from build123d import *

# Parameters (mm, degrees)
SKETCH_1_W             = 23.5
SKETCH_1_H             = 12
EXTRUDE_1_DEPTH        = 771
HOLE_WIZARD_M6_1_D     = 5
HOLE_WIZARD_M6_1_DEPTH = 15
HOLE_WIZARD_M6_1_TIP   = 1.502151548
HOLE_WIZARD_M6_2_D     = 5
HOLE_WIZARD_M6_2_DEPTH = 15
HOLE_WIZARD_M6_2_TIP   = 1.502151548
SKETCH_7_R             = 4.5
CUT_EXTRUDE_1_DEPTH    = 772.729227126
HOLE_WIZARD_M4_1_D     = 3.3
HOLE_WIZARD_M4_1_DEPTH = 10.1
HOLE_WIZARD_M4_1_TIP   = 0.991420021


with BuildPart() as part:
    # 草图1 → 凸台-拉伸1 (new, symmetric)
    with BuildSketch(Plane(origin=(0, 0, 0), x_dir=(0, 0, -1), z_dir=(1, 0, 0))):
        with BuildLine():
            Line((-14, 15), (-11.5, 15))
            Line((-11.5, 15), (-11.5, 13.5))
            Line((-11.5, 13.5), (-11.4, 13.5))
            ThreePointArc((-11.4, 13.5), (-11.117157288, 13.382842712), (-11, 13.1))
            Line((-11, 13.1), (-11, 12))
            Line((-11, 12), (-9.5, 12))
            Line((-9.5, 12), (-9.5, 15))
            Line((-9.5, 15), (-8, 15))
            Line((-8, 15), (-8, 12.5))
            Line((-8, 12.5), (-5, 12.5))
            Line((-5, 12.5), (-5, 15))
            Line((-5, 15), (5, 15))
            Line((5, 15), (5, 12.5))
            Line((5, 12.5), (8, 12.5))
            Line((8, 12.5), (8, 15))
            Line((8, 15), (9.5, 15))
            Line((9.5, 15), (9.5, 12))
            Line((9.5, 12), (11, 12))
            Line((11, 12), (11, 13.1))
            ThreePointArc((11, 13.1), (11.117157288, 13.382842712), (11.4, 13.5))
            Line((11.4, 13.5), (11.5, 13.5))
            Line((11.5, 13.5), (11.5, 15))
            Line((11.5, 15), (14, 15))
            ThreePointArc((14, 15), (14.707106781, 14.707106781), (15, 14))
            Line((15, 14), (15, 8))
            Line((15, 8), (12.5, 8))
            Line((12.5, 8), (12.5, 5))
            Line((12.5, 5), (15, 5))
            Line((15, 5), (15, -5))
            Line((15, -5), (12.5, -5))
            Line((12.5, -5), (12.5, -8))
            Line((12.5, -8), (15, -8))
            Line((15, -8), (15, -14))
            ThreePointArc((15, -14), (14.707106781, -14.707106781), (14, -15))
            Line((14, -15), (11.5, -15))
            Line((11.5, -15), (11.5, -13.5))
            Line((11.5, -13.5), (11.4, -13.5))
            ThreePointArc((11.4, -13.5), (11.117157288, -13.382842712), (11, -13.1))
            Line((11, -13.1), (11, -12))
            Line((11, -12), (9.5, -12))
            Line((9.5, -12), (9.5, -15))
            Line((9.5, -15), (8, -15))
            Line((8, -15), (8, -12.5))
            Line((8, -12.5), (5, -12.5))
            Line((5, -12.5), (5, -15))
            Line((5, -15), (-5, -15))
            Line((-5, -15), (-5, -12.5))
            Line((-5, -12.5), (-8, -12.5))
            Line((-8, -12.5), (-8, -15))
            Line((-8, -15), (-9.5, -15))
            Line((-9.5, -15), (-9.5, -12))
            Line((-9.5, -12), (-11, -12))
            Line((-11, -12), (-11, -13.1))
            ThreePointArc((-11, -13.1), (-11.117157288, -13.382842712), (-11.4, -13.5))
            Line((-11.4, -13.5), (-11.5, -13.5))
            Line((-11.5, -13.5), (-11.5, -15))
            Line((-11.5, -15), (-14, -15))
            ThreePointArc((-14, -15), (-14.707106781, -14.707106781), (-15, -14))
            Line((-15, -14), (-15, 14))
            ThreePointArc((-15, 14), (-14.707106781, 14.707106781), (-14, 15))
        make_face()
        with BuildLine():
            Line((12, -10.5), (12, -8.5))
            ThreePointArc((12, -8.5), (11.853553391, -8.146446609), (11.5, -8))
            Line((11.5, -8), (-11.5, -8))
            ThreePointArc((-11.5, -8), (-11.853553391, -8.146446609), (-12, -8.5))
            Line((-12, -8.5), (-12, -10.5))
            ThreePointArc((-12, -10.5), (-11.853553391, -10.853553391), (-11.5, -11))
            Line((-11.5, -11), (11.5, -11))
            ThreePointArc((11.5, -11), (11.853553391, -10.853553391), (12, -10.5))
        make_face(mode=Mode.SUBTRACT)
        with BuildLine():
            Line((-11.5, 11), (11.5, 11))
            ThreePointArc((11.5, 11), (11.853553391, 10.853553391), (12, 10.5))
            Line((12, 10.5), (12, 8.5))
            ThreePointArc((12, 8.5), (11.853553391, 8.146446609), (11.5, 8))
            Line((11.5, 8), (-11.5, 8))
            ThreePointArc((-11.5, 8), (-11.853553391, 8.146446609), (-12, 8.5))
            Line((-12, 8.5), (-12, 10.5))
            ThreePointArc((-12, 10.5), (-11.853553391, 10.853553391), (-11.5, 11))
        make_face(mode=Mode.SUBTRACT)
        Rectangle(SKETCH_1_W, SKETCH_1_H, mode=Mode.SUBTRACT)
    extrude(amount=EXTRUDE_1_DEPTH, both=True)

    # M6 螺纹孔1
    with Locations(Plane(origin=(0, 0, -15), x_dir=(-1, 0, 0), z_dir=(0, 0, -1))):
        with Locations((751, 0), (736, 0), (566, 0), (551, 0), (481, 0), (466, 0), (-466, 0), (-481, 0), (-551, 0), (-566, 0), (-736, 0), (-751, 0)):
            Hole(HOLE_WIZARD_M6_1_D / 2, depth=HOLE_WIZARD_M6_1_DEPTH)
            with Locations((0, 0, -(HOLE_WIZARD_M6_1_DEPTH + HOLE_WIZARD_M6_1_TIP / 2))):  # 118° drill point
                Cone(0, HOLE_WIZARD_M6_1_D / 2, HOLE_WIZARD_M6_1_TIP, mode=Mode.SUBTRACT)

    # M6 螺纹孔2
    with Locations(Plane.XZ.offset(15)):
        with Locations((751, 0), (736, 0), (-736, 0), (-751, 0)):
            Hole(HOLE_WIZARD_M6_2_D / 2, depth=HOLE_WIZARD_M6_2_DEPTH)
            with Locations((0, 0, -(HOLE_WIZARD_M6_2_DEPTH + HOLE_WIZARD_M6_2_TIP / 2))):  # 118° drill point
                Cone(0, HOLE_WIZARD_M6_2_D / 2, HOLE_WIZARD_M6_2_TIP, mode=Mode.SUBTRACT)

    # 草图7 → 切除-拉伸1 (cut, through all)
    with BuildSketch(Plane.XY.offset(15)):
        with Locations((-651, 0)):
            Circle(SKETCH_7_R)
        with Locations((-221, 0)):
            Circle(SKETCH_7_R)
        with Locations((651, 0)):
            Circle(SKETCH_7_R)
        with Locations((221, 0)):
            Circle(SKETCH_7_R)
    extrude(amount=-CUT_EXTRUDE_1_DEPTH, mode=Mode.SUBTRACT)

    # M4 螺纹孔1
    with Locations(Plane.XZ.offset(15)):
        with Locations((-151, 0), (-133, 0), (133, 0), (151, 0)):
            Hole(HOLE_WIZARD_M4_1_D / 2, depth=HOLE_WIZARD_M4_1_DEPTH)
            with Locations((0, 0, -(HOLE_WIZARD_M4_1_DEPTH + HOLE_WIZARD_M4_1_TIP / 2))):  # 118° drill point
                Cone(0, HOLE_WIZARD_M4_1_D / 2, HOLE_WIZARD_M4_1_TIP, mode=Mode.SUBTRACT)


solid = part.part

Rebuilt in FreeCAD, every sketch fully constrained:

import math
import FreeCAD as App
import Part
import Sketcher


def add_polygon(sketch, points):
    """Adds a closed chain of lines whose ends are joined by coincident constraints."""
    first, n = sketch.GeometryCount, len(points)
    for a, b in zip(points, points[1:] + points[:1]):
        sketch.addGeometry(Part.LineSegment(App.Vector(*a, 0), App.Vector(*b, 0)), False)
    for i in range(n):
        sketch.addConstraint(Sketcher.Constraint("Coincident", first + i, 2, first + (i + 1) % n, 1))

doc = App.newDocument("Part")
body = doc.addObject("PartDesign::Body", "Body")

sketch1 = body.newObject("Sketcher::SketchObject", "Sketch")
sketch1.AttachmentSupport = (doc.getObject("YZ_Plane"), [""])
sketch1.MapMode = "FlatFace"
sketch1.addGeometry(Part.LineSegment(App.Vector(15, 11.5, 0), App.Vector(15, 14, 0)), False)
sketch1.addGeometry(Part.ArcOfCircle(Part.Circle(App.Vector(14, 14, 0), App.Vector(0, 0, 1), 1), math.radians(0), math.radians(90)), False)
sketch1.addGeometry(Part.LineSegment(App.Vector(14, 15, 0), App.Vector(-14, 15, 0)), False)
sketch1.addGeometry(Part.ArcOfCircle(Part.Circle(App.Vector(-14, 14, 0), App.Vector(0, 0, 1), 1), math.radians(90), math.radians(180)), False)
sketch1.addGeometry(Part.LineSegment(App.Vector(-15, 14, 0), App.Vector(-15, 11.5, 0)), False)
sketch1.addGeometry(Part.LineSegment(App.Vector(-15, 11.5, 0), App.Vector(-13.5, 11.5, 0)), False)
sketch1.addGeometry(Part.LineSegment(App.Vector(-13.5, 11.5, 0), App.Vector(-13.5, 11.4, 0)), False)
sketch1.addGeometry(Part.ArcOfCircle(Part.Circle(App.Vector(-13.1, 11.4, 0), App.Vector(0, 0, 1), 0.4), math.radians(-180), math.radians(-90)), False)
sketch1.addGeometry(Part.LineSegment(App.Vector(-13.1, 11, 0), App.Vector(-12, 11, 0)), False)
sketch1.addGeometry(Part.LineSegment(App.Vector(-12, 11, 0), App.Vector(-12, 9.5, 0)), False)
sketch1.addGeometry(Part.LineSegment(App.Vector(-12, 9.5, 0), App.Vector(-15, 9.5, 0)), False)
sketch1.addGeometry(Part.LineSegment(App.Vector(-15, 9.5, 0), App.Vector(-15, 8, 0)), False)
sketch1.addGeometry(Part.LineSegment(App.Vector(-15, 8, 0), App.Vector(-12.5, 8, 0)), False)
sketch1.addGeometry(Part.LineSegment(App.Vector(-12.5, 8, 0), App.Vector(-12.5, 5, 0)), False)
sketch1.addGeometry(Part.LineSegment(App.Vector(-12.5, 5, 0), App.Vector(-15, 5, 0)), False)
sketch1.addGeometry(Part.LineSegment(App.Vector(-15, 5, 0), App.Vector(-15, -5, 0)), False)
sketch1.addGeometry(Part.LineSegment(App.Vector(-15, -5, 0), App.Vector(-12.5, -5, 0)), False)
sketch1.addGeometry(Part.LineSegment(App.Vector(-12.5, -5, 0), App.Vector(-12.5, -8, 0)), False)
sketch1.addGeometry(Part.LineSegment(App.Vector(-12.5, -8, 0), App.Vector(-15, -8, 0)), False)
sketch1.addGeometry(Part.LineSegment(App.Vector(-15, -8, 0), App.Vector(-15, -9.5, 0)), False)
sketch1.addGeometry(Part.LineSegment(App.Vector(-15, -9.5, 0), App.Vector(-12, -9.5, 0)), False)
sketch1.addGeometry(Part.LineSegment(App.Vector(-12, -9.5, 0), App.Vector(-12, -11, 0)), False)
sketch1.addGeometry(Part.LineSegment(App.Vector(-12, -11, 0), App.Vector(-13.1, -11, 0)), False)
sketch1.addGeometry(Part.ArcOfCircle(Part.Circle(App.Vector(-13.1, -11.4, 0), App.Vector(0, 0, 1), 0.4), math.radians(90), math.radians(180)), False)
sketch1.addGeometry(Part.LineSegment(App.Vector(-13.5, -11.4, 0), App.Vector(-13.5, -11.5, 0)), False)
sketch1.addGeometry(Part.LineSegment(App.Vector(-13.5, -11.5, 0), App.Vector(-15, -11.5, 0)), False)
sketch1.addGeometry(Part.LineSegment(App.Vector(-15, -11.5, 0), App.Vector(-15, -14, 0)), False)
sketch1.addGeometry(Part.ArcOfCircle(Part.Circle(App.Vector(-14, -14, 0), App.Vector(0, 0, 1), 1), math.radians(-180), math.radians(-90)), False)
sketch1.addGeometry(Part.LineSegment(App.Vector(-14, -15, 0), App.Vector(-8, -15, 0)), False)
sketch1.addGeometry(Part.LineSegment(App.Vector(-8, -15, 0), App.Vector(-8, -12.5, 0)), False)
sketch1.addGeometry(Part.LineSegment(App.Vector(-8, -12.5, 0), App.Vector(-5, -12.5, 0)), False)
sketch1.addGeometry(Part.LineSegment(App.Vector(-5, -12.5, 0), App.Vector(-5, -15, 0)), False)
sketch1.addGeometry(Part.LineSegment(App.Vector(-5, -15, 0), App.Vector(5, -15, 0)), False)
sketch1.addGeometry(Part.LineSegment(App.Vector(5, -15, 0), App.Vector(5, -12.5, 0)), False)
sketch1.addGeometry(Part.LineSegment(App.Vector(5, -12.5, 0), App.Vector(8, -12.5, 0)), False)
sketch1.addGeometry(Part.LineSegment(App.Vector(8, -12.5, 0), App.Vector(8, -15, 0)), False)
sketch1.addGeometry(Part.LineSegment(App.Vector(8, -15, 0), App.Vector(14, -15, 0)), False)
sketch1.addGeometry(Part.ArcOfCircle(Part.Circle(App.Vector(14, -14, 0), App.Vector(0, 0, 1), 1), math.radians(-90), math.radians(0)), False)
sketch1.addGeometry(Part.LineSegment(App.Vector(15, -14, 0), App.Vector(15, -11.5, 0)), False)
sketch1.addGeometry(Part.LineSegment(App.Vector(15, -11.5, 0), App.Vector(13.5, -11.5, 0)), False)
sketch1.addGeometry(Part.LineSegment(App.Vector(13.5, -11.5, 0), App.Vector(13.5, -11.4, 0)), False)
sketch1.addGeometry(Part.ArcOfCircle(Part.Circle(App.Vector(13.1, -11.4, 0), App.Vector(0, 0, 1), 0.4), math.radians(0), math.radians(90)), False)
sketch1.addGeometry(Part.LineSegment(App.Vector(13.1, -11, 0), App.Vector(12, -11, 0)), False)
sketch1.addGeometry(Part.LineSegment(App.Vector(12, -11, 0), App.Vector(12, -9.5, 0)), False)
sketch1.addGeometry(Part.LineSegment(App.Vector(12, -9.5, 0), App.Vector(15, -9.5, 0)), False)
sketch1.addGeometry(Part.LineSegment(App.Vector(15, -9.5, 0), App.Vector(15, -8, 0)), False)
sketch1.addGeometry(Part.LineSegment(App.Vector(15, -8, 0), App.Vector(12.5, -8, 0)), False)
sketch1.addGeometry(Part.LineSegment(App.Vector(12.5, -8, 0), App.Vector(12.5, -5, 0)), False)
sketch1.addGeometry(Part.LineSegment(App.Vector(12.5, -5, 0), App.Vector(15, -5, 0)), False)
sketch1.addGeometry(Part.LineSegment(App.Vector(15, -5, 0), App.Vector(15, 5, 0)), False)
sketch1.addGeometry(Part.LineSegment(App.Vector(15, 5, 0), App.Vector(12.5, 5, 0)), False)
sketch1.addGeometry(Part.LineSegment(App.Vector(12.5, 5, 0), App.Vector(12.5, 8, 0)), False)
sketch1.addGeometry(Part.LineSegment(App.Vector(12.5, 8, 0), App.Vector(15, 8, 0)), False)
sketch1.addGeometry(Part.LineSegment(App.Vector(15, 8, 0), App.Vector(15, 9.5, 0)), False)
sketch1.addGeometry(Part.LineSegment(App.Vector(15, 9.5, 0), App.Vector(12, 9.5, 0)), False)
sketch1.addGeometry(Part.LineSegment(App.Vector(12, 9.5, 0), App.Vector(12, 11, 0)), False)
sketch1.addGeometry(Part.LineSegment(App.Vector(12, 11, 0), App.Vector(13.1, 11, 0)), False)
sketch1.addGeometry(Part.ArcOfCircle(Part.Circle(App.Vector(13.1, 11.4, 0), App.Vector(0, 0, 1), 0.4), math.radians(-90), math.radians(0)), False)
sketch1.addGeometry(Part.LineSegment(App.Vector(13.5, 11.4, 0), App.Vector(13.5, 11.5, 0)), False)
sketch1.addGeometry(Part.LineSegment(App.Vector(13.5, 11.5, 0), App.Vector(15, 11.5, 0)), False)
sketch1.addGeometry(Part.ArcOfCircle(Part.Circle(App.Vector(-10.5, -11.5, 0), App.Vector(0, 0, 1), 0.5), math.radians(180), math.radians(270)), False)
sketch1.addGeometry(Part.LineSegment(App.Vector(-11, -11.5, 0), App.Vector(-11, 11.5, 0)), False)
sketch1.addGeometry(Part.ArcOfCircle(Part.Circle(App.Vector(-10.5, 11.5, 0), App.Vector(0, 0, 1), 0.5), math.radians(90), math.radians(180)), False)
sketch1.addGeometry(Part.LineSegment(App.Vector(-10.5, 12, 0), App.Vector(-8.5, 12, 0)), False)
sketch1.addGeometry(Part.ArcOfCircle(Part.Circle(App.Vector(-8.5, 11.5, 0), App.Vector(0, 0, 1), 0.5), math.radians(0), math.radians(90)), False)
sketch1.addGeometry(Part.LineSegment(App.Vector(-8, 11.5, 0), App.Vector(-8, -11.5, 0)), False)
sketch1.addGeometry(Part.ArcOfCircle(Part.Circle(App.Vector(-8.5, -11.5, 0), App.Vector(0, 0, 1), 0.5), math.radians(-90), math.radians(0)), False)
sketch1.addGeometry(Part.LineSegment(App.Vector(-8.5, -12, 0), App.Vector(-10.5, -12, 0)), False)
add_polygon(sketch1, [(-6, 11.75), (6, 11.75), (6, -11.75), (-6, -11.75)])
sketch1.addGeometry(Part.LineSegment(App.Vector(11, 11.5, 0), App.Vector(11, -11.5, 0)), False)
sketch1.addGeometry(Part.ArcOfCircle(Part.Circle(App.Vector(10.5, -11.5, 0), App.Vector(0, 0, 1), 0.5), math.radians(-90), math.radians(0)), False)
sketch1.addGeometry(Part.LineSegment(App.Vector(10.5, -12, 0), App.Vector(8.5, -12, 0)), False)
sketch1.addGeometry(Part.ArcOfCircle(Part.Circle(App.Vector(8.5, -11.5, 0), App.Vector(0, 0, 1), 0.5), math.radians(180), math.radians(270)), False)
sketch1.addGeometry(Part.LineSegment(App.Vector(8, -11.5, 0), App.Vector(8, 11.5, 0)), False)
sketch1.addGeometry(Part.ArcOfCircle(Part.Circle(App.Vector(8.5, 11.5, 0), App.Vector(0, 0, 1), 0.5), math.radians(90), math.radians(180)), False)
sketch1.addGeometry(Part.LineSegment(App.Vector(8.5, 12, 0), App.Vector(10.5, 12, 0)), False)
sketch1.addGeometry(Part.ArcOfCircle(Part.Circle(App.Vector(10.5, 11.5, 0), App.Vector(0, 0, 1), 0.5), math.radians(0), math.radians(90)), False)
sketch1.addConstraint(Sketcher.Constraint("Tangent", 0, 2, 1, 1))
sketch1.addConstraint(Sketcher.Constraint("Tangent", 1, 2, 2, 1))
sketch1.addConstraint(Sketcher.Constraint("Tangent", 2, 2, 3, 1))
sketch1.addConstraint(Sketcher.Constraint("Tangent", 3, 2, 4, 1))
sketch1.addConstraint(Sketcher.Constraint("Coincident", 4, 2, 5, 1))
sketch1.addConstraint(Sketcher.Constraint("Coincident", 5, 2, 6, 1))
sketch1.addConstraint(Sketcher.Constraint("Tangent", 6, 2, 7, 1))
sketch1.addConstraint(Sketcher.Constraint("Tangent", 7, 2, 8, 1))
sketch1.addConstraint(Sketcher.Constraint("Coincident", 8, 2, 9, 1))
sketch1.addConstraint(Sketcher.Constraint("Coincident", 9, 2, 10, 1))
sketch1.addConstraint(Sketcher.Constraint("Coincident", 10, 2, 11, 1))
sketch1.addConstraint(Sketcher.Constraint("Coincident", 11, 2, 12, 1))
sketch1.addConstraint(Sketcher.Constraint("Coincident", 12, 2, 13, 1))
sketch1.addConstraint(Sketcher.Constraint("Coincident", 13, 2, 14, 1))
sketch1.addConstraint(Sketcher.Constraint("Coincident", 14, 2, 15, 1))
sketch1.addConstraint(Sketcher.Constraint("Coincident", 15, 2, 16, 1))
sketch1.addConstraint(Sketcher.Constraint("Coincident", 16, 2, 17, 1))
sketch1.addConstraint(Sketcher.Constraint("Coincident", 17, 2, 18, 1))
sketch1.addConstraint(Sketcher.Constraint("Coincident", 18, 2, 19, 1))
sketch1.addConstraint(Sketcher.Constraint("Coincident", 19, 2, 20, 1))
sketch1.addConstraint(Sketcher.Constraint("Coincident", 20, 2, 21, 1))
sketch1.addConstraint(Sketcher.Constraint("Coincident", 21, 2, 22, 1))
sketch1.addConstraint(Sketcher.Constraint("Tangent", 22, 2, 23, 1))
sketch1.addConstraint(Sketcher.Constraint("Tangent", 23, 2, 24, 1))
sketch1.addConstraint(Sketcher.Constraint("Coincident", 24, 2, 25, 1))
sketch1.addConstraint(Sketcher.Constraint("Coincident", 25, 2, 26, 1))
sketch1.addConstraint(Sketcher.Constraint("Tangent", 26, 2, 27, 1))
sketch1.addConstraint(Sketcher.Constraint("Tangent", 27, 2, 28, 1))
sketch1.addConstraint(Sketcher.Constraint("Coincident", 28, 2, 29, 1))
sketch1.addConstraint(Sketcher.Constraint("Coincident", 29, 2, 30, 1))
sketch1.addConstraint(Sketcher.Constraint("Coincident", 30, 2, 31, 1))
sketch1.addConstraint(Sketcher.Constraint("Coincident", 31, 2, 32, 1))
sketch1.addConstraint(Sketcher.Constraint("Coincident", 32, 2, 33, 1))
sketch1.addConstraint(Sketcher.Constraint("Coincident", 33, 2, 34, 1))
sketch1.addConstraint(Sketcher.Constraint("Coincident", 34, 2, 35, 1))
sketch1.addConstraint(Sketcher.Constraint("Coincident", 35, 2, 36, 1))
sketch1.addConstraint(Sketcher.Constraint("Tangent", 36, 2, 37, 1))
sketch1.addConstraint(Sketcher.Constraint("Tangent", 37, 2, 38, 1))
sketch1.addConstraint(Sketcher.Constraint("Coincident", 38, 2, 39, 1))
sketch1.addConstraint(Sketcher.Constraint("Coincident", 39, 2, 40, 1))
sketch1.addConstraint(Sketcher.Constraint("Tangent", 40, 2, 41, 1))
sketch1.addConstraint(Sketcher.Constraint("Tangent", 41, 2, 42, 1))
sketch1.addConstraint(Sketcher.Constraint("Coincident", 42, 2, 43, 1))
sketch1.addConstraint(Sketcher.Constraint("Coincident", 43, 2, 44, 1))
sketch1.addConstraint(Sketcher.Constraint("Coincident", 44, 2, 45, 1))
sketch1.addConstraint(Sketcher.Constraint("Coincident", 45, 2, 46, 1))
sketch1.addConstraint(Sketcher.Constraint("Coincident", 46, 2, 47, 1))
sketch1.addConstraint(Sketcher.Constraint("Coincident", 47, 2, 48, 1))
sketch1.addConstraint(Sketcher.Constraint("Coincident", 48, 2, 49, 1))
sketch1.addConstraint(Sketcher.Constraint("Coincident", 49, 2, 50, 1))
sketch1.addConstraint(Sketcher.Constraint("Coincident", 50, 2, 51, 1))
sketch1.addConstraint(Sketcher.Constraint("Coincident", 51, 2, 52, 1))
sketch1.addConstraint(Sketcher.Constraint("Coincident", 52, 2, 53, 1))
sketch1.addConstraint(Sketcher.Constraint("Coincident", 53, 2, 54, 1))
sketch1.addConstraint(Sketcher.Constraint("Coincident", 54, 2, 55, 1))
sketch1.addConstraint(Sketcher.Constraint("Coincident", 55, 2, 56, 1))
sketch1.addConstraint(Sketcher.Constraint("Tangent", 56, 2, 57, 1))
sketch1.addConstraint(Sketcher.Constraint("Tangent", 57, 2, 58, 1))
sketch1.addConstraint(Sketcher.Constraint("Coincident", 58, 2, 59, 1))
sketch1.addConstraint(Sketcher.Constraint("Coincident", 59, 2, 0, 1))
sketch1.addConstraint(Sketcher.Constraint("Tangent", 60, 1, 61, 1))
sketch1.addConstraint(Sketcher.Constraint("Tangent", 61, 2, 62, 2))
sketch1.addConstraint(Sketcher.Constraint("Tangent", 62, 1, 63, 1))
sketch1.addConstraint(Sketcher.Constraint("Tangent", 63, 2, 64, 2))
sketch1.addConstraint(Sketcher.Constraint("Tangent", 64, 1, 65, 1))
sketch1.addConstraint(Sketcher.Constraint("Tangent", 65, 2, 66, 2))
sketch1.addConstraint(Sketcher.Constraint("Tangent", 66, 1, 67, 1))
sketch1.addConstraint(Sketcher.Constraint("Tangent", 67, 2, 60, 2))
sketch1.addConstraint(Sketcher.Constraint("Tangent", 72, 2, 73, 2))
sketch1.addConstraint(Sketcher.Constraint("Tangent", 73, 1, 74, 1))
sketch1.addConstraint(Sketcher.Constraint("Tangent", 74, 2, 75, 2))
sketch1.addConstraint(Sketcher.Constraint("Tangent", 75, 1, 76, 1))
sketch1.addConstraint(Sketcher.Constraint("Tangent", 76, 2, 77, 2))
sketch1.addConstraint(Sketcher.Constraint("Tangent", 77, 1, 78, 1))
sketch1.addConstraint(Sketcher.Constraint("Tangent", 78, 2, 79, 2))
sketch1.addConstraint(Sketcher.Constraint("Tangent", 79, 1, 72, 1))
sketch1.addConstraint(Sketcher.Constraint("Vertical", 0))
sketch1.addConstraint(Sketcher.Constraint("Horizontal", 2))
sketch1.addConstraint(Sketcher.Constraint("Vertical", 4))
sketch1.addConstraint(Sketcher.Constraint("Horizontal", 5))
sketch1.addConstraint(Sketcher.Constraint("Vertical", 6))
sketch1.addConstraint(Sketcher.Constraint("Horizontal", 8))
sketch1.addConstraint(Sketcher.Constraint("Vertical", 9))
sketch1.addConstraint(Sketcher.Constraint("Horizontal", 10))
sketch1.addConstraint(Sketcher.Constraint("Vertical", 11))
sketch1.addConstraint(Sketcher.Constraint("Horizontal", 12))
sketch1.addConstraint(Sketcher.Constraint("Vertical", 13))
sketch1.addConstraint(Sketcher.Constraint("Horizontal", 14))
sketch1.addConstraint(Sketcher.Constraint("Vertical", 15))
sketch1.addConstraint(Sketcher.Constraint("Horizontal", 16))
sketch1.addConstraint(Sketcher.Constraint("Vertical", 17))
sketch1.addConstraint(Sketcher.Constraint("Horizontal", 18))
sketch1.addConstraint(Sketcher.Constraint("Vertical", 19))
sketch1.addConstraint(Sketcher.Constraint("Horizontal", 20))
sketch1.addConstraint(Sketcher.Constraint("Vertical", 21))
sketch1.addConstraint(Sketcher.Constraint("Horizontal", 22))
sketch1.addConstraint(Sketcher.Constraint("Vertical", 24))
sketch1.addConstraint(Sketcher.Constraint("Horizontal", 25))
sketch1.addConstraint(Sketcher.Constraint("Vertical", 26))
sketch1.addConstraint(Sketcher.Constraint("Horizontal", 28))
sketch1.addConstraint(Sketcher.Constraint("Vertical", 29))
sketch1.addConstraint(Sketcher.Constraint("Horizontal", 30))
sketch1.addConstraint(Sketcher.Constraint("Vertical", 31))
sketch1.addConstraint(Sketcher.Constraint("Horizontal", 32))
sketch1.addConstraint(Sketcher.Constraint("Vertical", 33))
sketch1.addConstraint(Sketcher.Constraint("Horizontal", 34))
sketch1.addConstraint(Sketcher.Constraint("Vertical", 35))
sketch1.addConstraint(Sketcher.Constraint("Horizontal", 36))
sketch1.addConstraint(Sketcher.Constraint("Vertical", 38))
sketch1.addConstraint(Sketcher.Constraint("Horizontal", 39))
sketch1.addConstraint(Sketcher.Constraint("Vertical", 40))
sketch1.addConstraint(Sketcher.Constraint("Horizontal", 42))
sketch1.addConstraint(Sketcher.Constraint("Vertical", 43))
sketch1.addConstraint(Sketcher.Constraint("Horizontal", 44))
sketch1.addConstraint(Sketcher.Constraint("Vertical", 45))
sketch1.addConstraint(Sketcher.Constraint("Horizontal", 46))
sketch1.addConstraint(Sketcher.Constraint("Vertical", 47))
sketch1.addConstraint(Sketcher.Constraint("Horizontal", 48))
sketch1.addConstraint(Sketcher.Constraint("Vertical", 49))
sketch1.addConstraint(Sketcher.Constraint("Horizontal", 50))
sketch1.addConstraint(Sketcher.Constraint("Vertical", 51))
sketch1.addConstraint(Sketcher.Constraint("Horizontal", 52))
sketch1.addConstraint(Sketcher.Constraint("Vertical", 53))
sketch1.addConstraint(Sketcher.Constraint("Horizontal", 54))
sketch1.addConstraint(Sketcher.Constraint("Vertical", 55))
sketch1.addConstraint(Sketcher.Constraint("Horizontal", 56))
sketch1.addConstraint(Sketcher.Constraint("Vertical", 58))
sketch1.addConstraint(Sketcher.Constraint("Horizontal", 59))
sketch1.addConstraint(Sketcher.Constraint("Vertical", 61))
sketch1.addConstraint(Sketcher.Constraint("Horizontal", 63))
sketch1.addConstraint(Sketcher.Constraint("Vertical", 65))
sketch1.addConstraint(Sketcher.Constraint("Horizontal", 67))
sketch1.addConstraint(Sketcher.Constraint("Horizontal", 68))
sketch1.addConstraint(Sketcher.Constraint("Vertical", 69))
sketch1.addConstraint(Sketcher.Constraint("Horizontal", 70))
sketch1.addConstraint(Sketcher.Constraint("Vertical", 71))
sketch1.addConstraint(Sketcher.Constraint("Vertical", 72))
sketch1.addConstraint(Sketcher.Constraint("Horizontal", 74))
sketch1.addConstraint(Sketcher.Constraint("Vertical", 76))
sketch1.addConstraint(Sketcher.Constraint("Horizontal", 78))
sketch1.addConstraint(Sketcher.Constraint("Equal", 1, 3))
sketch1.addConstraint(Sketcher.Constraint("Equal", 7, 23))
sketch1.addConstraint(Sketcher.Constraint("Equal", 3, 27))
sketch1.addConstraint(Sketcher.Constraint("Equal", 27, 37))
sketch1.addConstraint(Sketcher.Constraint("Equal", 23, 41))
sketch1.addConstraint(Sketcher.Constraint("Equal", 41, 57))
sketch1.addConstraint(Sketcher.Constraint("Equal", 60, 62))
sketch1.addConstraint(Sketcher.Constraint("Equal", 62, 64))
sketch1.addConstraint(Sketcher.Constraint("Equal", 64, 66))
sketch1.addConstraint(Sketcher.Constraint("Equal", 66, 73))
sketch1.addConstraint(Sketcher.Constraint("Equal", 73, 75))
sketch1.addConstraint(Sketcher.Constraint("Equal", 75, 77))
sketch1.addConstraint(Sketcher.Constraint("Equal", 77, 79))
sketch1.addConstraint(Sketcher.Constraint("Symmetric", 1, 3, 27, 3, -1, 1))
sketch1.addConstraint(Sketcher.Constraint("Symmetric", 3, 3, 37, 3, -1, 1))
sketch1.addConstraint(Sketcher.Constraint("Symmetric", 7, 3, 41, 3, -1, 1))
sketch1.addConstraint(Sketcher.Constraint("Symmetric", 23, 3, 57, 3, -1, 1))
sketch1.addConstraint(Sketcher.Constraint("Symmetric", 62, 3, 73, 3, -1, 1))
sketch1.addConstraint(Sketcher.Constraint("Symmetric", 66, 3, 77, 3, -1, 1))
sketch1.addConstraint(Sketcher.Constraint("Symmetric", 9, 2, 43, 2, -1, 1))
sketch1.addConstraint(Sketcher.Constraint("Symmetric", 11, 2, 45, 2, -1, 1))
sketch1.addConstraint(Sketcher.Constraint("Symmetric", 13, 2, 47, 2, -1, 1))
sketch1.addConstraint(Sketcher.Constraint("Symmetric", 15, 2, 49, 2, -1, 1))
sketch1.addConstraint(Sketcher.Constraint("Symmetric", 17, 2, 51, 2, -1, 1))
sketch1.addConstraint(Sketcher.Constraint("Symmetric", 19, 2, 53, 2, -1, 1))
sketch1.addConstraint(Sketcher.Constraint("Symmetric", 68, 2, 70, 2, -1, 1))
sketch1.addConstraint(Sketcher.Constraint("Symmetric", 23, 3, 41, 3, -2))
sketch1.addConstraint(Sketcher.Constraint("Symmetric", 30, 2, 33, 2, -2))
sketch1.addConstraint(Sketcher.Constraint("Symmetric", 25, 2, 38, 2, -2))
sketch1.addConstraint(Sketcher.Constraint("Symmetric", 20, 2, 43, 2, -2))
sketch1.addConstraint(Sketcher.Constraint("Symmetric", 18, 2, 45, 2, -2))
sketch1.addConstraint(Sketcher.Constraint("Symmetric", 16, 2, 47, 2, -2))
sketch1.addConstraint(Sketcher.Constraint("Horizontal", 66, 3, 73, 3))
sketch1.addConstraint(Sketcher.Constraint("Horizontal", 79, 3, 4, 2))
sketch1.addConstraint(Sketcher.Constraint("Horizontal", 75, 3, 24, 2))
sketch1.addConstraint(Sketcher.Constraint("Horizontal", 28, 2, 31, 2))
sketch1.addConstraint(Sketcher.Constraint("Horizontal", 5, 2, 58, 2))
sketch1.addConstraint(Sketcher.Constraint("Vertical", 4, 2, 10, 2))
sketch1.addConstraint(Sketcher.Constraint("Vertical", 11, 2, 14, 2))
sketch1.addConstraint(Sketcher.Constraint("Vertical", 43, 2, 54, 2))
sketch1.addConstraint(Sketcher.Constraint("Vertical", 29, 2, 64, 1))
sketch1.addConstraint(Sketcher.Constraint("Vertical", 35, 2, 75, 1))
sketch1.addConstraint(Sketcher.Constraint("Equal", 20, 30))
sketch1.addConstraint(Sketcher.Constraint("Equal", 52, 0))
sketch1.addConstraint(Sketcher.Constraint("Equal", 59, 9))
sketch1.addConstraint(Sketcher.Constraint("Equal", 9, 11))
sketch1.addConstraint(Sketcher.Constraint("Equal", 54, 13))
sketch1.addConstraint(Sketcher.Constraint("Equal", 32, 15))
sketch1.addConstraint(Sketcher.Constraint("Equal", 26, 29))
sketch1.addConstraint(Sketcher.Constraint("Radius", 1, 1.0))
sketch1.addConstraint(Sketcher.Constraint("Radius", 7, 0.4))
sketch1.addConstraint(Sketcher.Constraint("Radius", 60, 0.5))
sketch1.addConstraint(Sketcher.Constraint("DistanceX", 2, 2, 2, 1, 28.0))
sketch1.addConstraint(Sketcher.Constraint("DistanceX", 10, 2, 10, 1, 3.0))
sketch1.addConstraint(Sketcher.Constraint("DistanceX", 28, 1, 28, 2, 6.0))
sketch1.addConstraint(Sketcher.Constraint("DistanceX", 63, 1, 63, 2, 2.0))
sketch1.addConstraint(Sketcher.Constraint("DistanceX", 68, 1, 68, 2, 12.0))
sketch1.addConstraint(Sketcher.Constraint("DistanceY", 61, 1, 61, 2, 23.0))
sketch1.addConstraint(Sketcher.Constraint("DistanceX", 5, 1, 5, 2, 1.5))
sketch1.addConstraint(Sketcher.Constraint("DistanceX", 12, 1, 12, 2, 2.5))
sketch1.addConstraint(Sketcher.Constraint("DistanceY", 69, 2, 69, 1, 23.5))
pad1 = body.newObject("PartDesign::Pad", "Pad")
pad1.Profile = sketch1
pad1.Length = 1542
pad1.Midplane = True

sketch2 = body.newObject("Sketcher::SketchObject", "Sketch001")
sketch2.AttachmentSupport = (doc.getObject("XY_Plane"), [""])
sketch2.MapMode = "FlatFace"
sketch2.AttachmentOffset = App.Placement(App.Vector(0, 0, -15), App.Rotation())
sketch2.addGeometry(Part.Circle(App.Vector(-751, 0, 0), App.Vector(0, 0, 1), 2.5), False)
sketch2.addGeometry(Part.Circle(App.Vector(-736, 0, 0), App.Vector(0, 0, 1), 2.5), False)
sketch2.addGeometry(Part.Circle(App.Vector(-566, 0, 0), App.Vector(0, 0, 1), 2.5), False)
sketch2.addGeometry(Part.Circle(App.Vector(-551, 0, 0), App.Vector(0, 0, 1), 2.5), False)
sketch2.addGeometry(Part.Circle(App.Vector(-481, 0, 0), App.Vector(0, 0, 1), 2.5), False)
sketch2.addGeometry(Part.Circle(App.Vector(-466, 0, 0), App.Vector(0, 0, 1), 2.5), False)
sketch2.addGeometry(Part.Circle(App.Vector(466, 0, 0), App.Vector(0, 0, 1), 2.5), False)
sketch2.addGeometry(Part.Circle(App.Vector(481, 0, 0), App.Vector(0, 0, 1), 2.5), False)
sketch2.addGeometry(Part.Circle(App.Vector(551, 0, 0), App.Vector(0, 0, 1), 2.5), False)
sketch2.addGeometry(Part.Circle(App.Vector(566, 0, 0), App.Vector(0, 0, 1), 2.5), False)
sketch2.addGeometry(Part.Circle(App.Vector(736, 0, 0), App.Vector(0, 0, 1), 2.5), False)
sketch2.addGeometry(Part.Circle(App.Vector(751, 0, 0), App.Vector(0, 0, 1), 2.5), False)
sketch2.addConstraint(Sketcher.Constraint("Equal", 0, 1))
sketch2.addConstraint(Sketcher.Constraint("Equal", 1, 2))
sketch2.addConstraint(Sketcher.Constraint("Equal", 2, 3))
sketch2.addConstraint(Sketcher.Constraint("Equal", 3, 4))
sketch2.addConstraint(Sketcher.Constraint("Equal", 4, 5))
sketch2.addConstraint(Sketcher.Constraint("Equal", 5, 6))
sketch2.addConstraint(Sketcher.Constraint("Equal", 6, 7))
sketch2.addConstraint(Sketcher.Constraint("Equal", 7, 8))
sketch2.addConstraint(Sketcher.Constraint("Equal", 8, 9))
sketch2.addConstraint(Sketcher.Constraint("Equal", 9, 10))
sketch2.addConstraint(Sketcher.Constraint("Equal", 10, 11))
sketch2.addConstraint(Sketcher.Constraint("Symmetric", 5, 3, 6, 3, -1, 1))
sketch2.addConstraint(Sketcher.Constraint("Symmetric", 4, 3, 7, 3, -1, 1))
sketch2.addConstraint(Sketcher.Constraint("Symmetric", 3, 3, 8, 3, -1, 1))
sketch2.addConstraint(Sketcher.Constraint("Symmetric", 2, 3, 9, 3, -1, 1))
sketch2.addConstraint(Sketcher.Constraint("Symmetric", 1, 3, 10, 3, -1, 1))
sketch2.addConstraint(Sketcher.Constraint("Symmetric", 0, 3, 11, 3, -1, 1))
sketch2.addConstraint(Sketcher.Constraint("PointOnObject", 0, 3, -1))
sketch2.addConstraint(Sketcher.Constraint("PointOnObject", 1, 3, -1))
sketch2.addConstraint(Sketcher.Constraint("PointOnObject", 2, 3, -1))
sketch2.addConstraint(Sketcher.Constraint("PointOnObject", 3, 3, -1))
sketch2.addConstraint(Sketcher.Constraint("PointOnObject", 4, 3, -1))
sketch2.addConstraint(Sketcher.Constraint("PointOnObject", 5, 3, -1))
sketch2.addConstraint(Sketcher.Constraint("Diameter", 0, 5.0))
sketch2.addConstraint(Sketcher.Constraint("DistanceX", 0, 3, -1, 1, 751.0))
sketch2.addConstraint(Sketcher.Constraint("DistanceX", 1, 3, -1, 1, 736.0))
sketch2.addConstraint(Sketcher.Constraint("DistanceX", 2, 3, -1, 1, 566.0))
sketch2.addConstraint(Sketcher.Constraint("DistanceX", 3, 3, -1, 1, 551.0))
sketch2.addConstraint(Sketcher.Constraint("DistanceX", 4, 3, -1, 1, 481.0))
sketch2.addConstraint(Sketcher.Constraint("DistanceX", 5, 3, -1, 1, 466.0))
doc.recompute()
hole = body.newObject("PartDesign::Hole", "Hole")
hole.Profile = sketch2
hole.ThreadType = "None"
hole.Diameter = 5
hole.DepthType = "Dimension"
hole.Depth = 15
hole.DrillPoint = "Angled"
hole.DrillPointAngle = 118
hole.Reversed = True

sketch3 = body.newObject("Sketcher::SketchObject", "Sketch002")
sketch3.AttachmentSupport = (doc.getObject("XZ_Plane"), [""])
sketch3.MapMode = "FlatFace"
sketch3.AttachmentOffset = App.Placement(App.Vector(0, 0, 15), App.Rotation())
sketch3.addGeometry(Part.Circle(App.Vector(751, 0, 0), App.Vector(0, 0, 1), 2.5), False)
sketch3.addGeometry(Part.Circle(App.Vector(736, 0, 0), App.Vector(0, 0, 1), 2.5), False)
sketch3.addGeometry(Part.Circle(App.Vector(-736, 0, 0), App.Vector(0, 0, 1), 2.5), False)
sketch3.addGeometry(Part.Circle(App.Vector(-751, 0, 0), App.Vector(0, 0, 1), 2.5), False)
sketch3.addConstraint(Sketcher.Constraint("Equal", 0, 1))
sketch3.addConstraint(Sketcher.Constraint("Equal", 1, 2))
sketch3.addConstraint(Sketcher.Constraint("Equal", 2, 3))
sketch3.addConstraint(Sketcher.Constraint("Symmetric", 1, 3, 2, 3, -1, 1))
sketch3.addConstraint(Sketcher.Constraint("Symmetric", 0, 3, 3, 3, -1, 1))
sketch3.addConstraint(Sketcher.Constraint("PointOnObject", 0, 3, -1))
sketch3.addConstraint(Sketcher.Constraint("PointOnObject", 1, 3, -1))
sketch3.addConstraint(Sketcher.Constraint("Diameter", 0, 5.0))
sketch3.addConstraint(Sketcher.Constraint("DistanceX", -1, 1, 0, 3, 751.0))
sketch3.addConstraint(Sketcher.Constraint("DistanceX", -1, 1, 1, 3, 736.0))
doc.recompute()
hole2 = body.newObject("PartDesign::Hole", "Hole001")
hole2.Profile = sketch3
hole2.ThreadType = "None"
hole2.Diameter = 5
hole2.DepthType = "Dimension"
hole2.Depth = 15
hole2.DrillPoint = "Angled"
hole2.DrillPointAngle = 118

sketch4 = body.newObject("Sketcher::SketchObject", "Sketch003")
sketch4.AttachmentSupport = (doc.getObject("XY_Plane"), [""])
sketch4.MapMode = "FlatFace"
sketch4.AttachmentOffset = App.Placement(App.Vector(0, 0, 15), App.Rotation())
sketch4.addGeometry(Part.Circle(App.Vector(-651, 0, 0), App.Vector(0, 0, 1), 4.5), False)
sketch4.addGeometry(Part.Circle(App.Vector(-221, 0, 0), App.Vector(0, 0, 1), 4.5), False)
sketch4.addGeometry(Part.Circle(App.Vector(651, 0, 0), App.Vector(0, 0, 1), 4.5), False)
sketch4.addGeometry(Part.Circle(App.Vector(221, 0, 0), App.Vector(0, 0, 1), 4.5), False)
sketch4.addConstraint(Sketcher.Constraint("Equal", 0, 1))
sketch4.addConstraint(Sketcher.Constraint("Equal", 1, 2))
sketch4.addConstraint(Sketcher.Constraint("Equal", 2, 3))
sketch4.addConstraint(Sketcher.Constraint("Symmetric", 0, 3, 2, 3, -1, 1))
sketch4.addConstraint(Sketcher.Constraint("Symmetric", 1, 3, 3, 3, -1, 1))
sketch4.addConstraint(Sketcher.Constraint("PointOnObject", 0, 3, -1))
sketch4.addConstraint(Sketcher.Constraint("PointOnObject", 1, 3, -1))
sketch4.addConstraint(Sketcher.Constraint("Diameter", 0, 9.0))
sketch4.addConstraint(Sketcher.Constraint("DistanceX", 0, 3, -1, 1, 651.0))
sketch4.addConstraint(Sketcher.Constraint("DistanceX", 1, 3, -1, 1, 221.0))
pocket1 = body.newObject("PartDesign::Pocket", "Pocket")
pocket1.Profile = sketch4
pocket1.Type = "ThroughAll"

sketch5 = body.newObject("Sketcher::SketchObject", "Sketch004")
sketch5.AttachmentSupport = (doc.getObject("XZ_Plane"), [""])
sketch5.MapMode = "FlatFace"
sketch5.AttachmentOffset = App.Placement(App.Vector(0, 0, 15), App.Rotation())
sketch5.addGeometry(Part.Circle(App.Vector(-151, 0, 0), App.Vector(0, 0, 1), 1.65), False)
sketch5.addGeometry(Part.Circle(App.Vector(-133, 0, 0), App.Vector(0, 0, 1), 1.65), False)
sketch5.addGeometry(Part.Circle(App.Vector(133, 0, 0), App.Vector(0, 0, 1), 1.65), False)
sketch5.addGeometry(Part.Circle(App.Vector(151, 0, 0), App.Vector(0, 0, 1), 1.65), False)
sketch5.addConstraint(Sketcher.Constraint("Equal", 0, 1))
sketch5.addConstraint(Sketcher.Constraint("Equal", 1, 2))
sketch5.addConstraint(Sketcher.Constraint("Equal", 2, 3))
sketch5.addConstraint(Sketcher.Constraint("Symmetric", 1, 3, 2, 3, -1, 1))
sketch5.addConstraint(Sketcher.Constraint("Symmetric", 0, 3, 3, 3, -1, 1))
sketch5.addConstraint(Sketcher.Constraint("PointOnObject", 0, 3, -1))
sketch5.addConstraint(Sketcher.Constraint("PointOnObject", 1, 3, -1))
sketch5.addConstraint(Sketcher.Constraint("Diameter", 0, 3.3))
sketch5.addConstraint(Sketcher.Constraint("DistanceX", 0, 3, -1, 1, 151.0))
sketch5.addConstraint(Sketcher.Constraint("DistanceX", 1, 3, -1, 1, 133.0))
doc.recompute()
hole3 = body.newObject("PartDesign::Hole", "Hole002")
hole3.Profile = sketch5
hole3.ThreadType = "None"
hole3.Diameter = 3.3
hole3.DepthType = "Dimension"
hole3.Depth = 10.1
hole3.DrillPoint = "Angled"
hole3.DrillPointAngle = 118

doc.recompute()
